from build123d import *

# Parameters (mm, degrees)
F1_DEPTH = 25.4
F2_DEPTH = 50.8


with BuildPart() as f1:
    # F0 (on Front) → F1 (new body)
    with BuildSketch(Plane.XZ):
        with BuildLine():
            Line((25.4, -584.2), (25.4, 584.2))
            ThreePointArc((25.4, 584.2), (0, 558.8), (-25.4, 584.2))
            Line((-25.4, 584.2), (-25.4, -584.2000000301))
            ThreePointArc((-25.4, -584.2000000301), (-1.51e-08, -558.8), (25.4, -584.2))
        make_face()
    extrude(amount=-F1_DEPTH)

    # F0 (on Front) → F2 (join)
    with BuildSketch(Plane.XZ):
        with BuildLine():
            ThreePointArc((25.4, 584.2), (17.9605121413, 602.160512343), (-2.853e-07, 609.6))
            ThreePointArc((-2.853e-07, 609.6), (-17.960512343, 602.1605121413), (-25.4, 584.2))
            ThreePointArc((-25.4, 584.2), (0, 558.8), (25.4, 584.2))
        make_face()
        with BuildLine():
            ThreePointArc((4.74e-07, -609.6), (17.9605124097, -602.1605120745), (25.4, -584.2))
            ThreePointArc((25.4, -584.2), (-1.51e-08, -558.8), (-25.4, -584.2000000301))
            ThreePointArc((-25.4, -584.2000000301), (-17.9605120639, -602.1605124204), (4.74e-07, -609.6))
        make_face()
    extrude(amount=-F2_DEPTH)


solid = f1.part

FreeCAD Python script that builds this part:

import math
import FreeCAD as App
import Part
import Sketcher
Q = App.Units.Quantity

doc = App.newDocument("Part")
body = doc.addObject("PartDesign::Body", "Body")

# Sketch on XZ plane
sketch1 = doc.addObject("Sketcher::SketchObject", "Sketch")
body.addObject(sketch1)
sketch1.AttachmentSupport = (doc.XZ_Plane, [""])
sketch1.MapMode = "FlatFace"
sketch1.addGeometry(Part.LineSegment(App.Vector(25, -584, 0), App.Vector(25, 584, 0)), False)
sketch1.addGeometry(Part.ArcOfCircle(Part.Circle(App.Vector(0, 584, 0), App.Vector(0, 0, 1), 25), math.radians(180), math.radians(360)), False)
sketch1.addGeometry(Part.LineSegment(App.Vector(-25, 584, 0), App.Vector(-25, -584, 0)), False)
sketch1.addGeometry(Part.ArcOfCircle(Part.Circle(App.Vector(0, -584, 0), App.Vector(0, 0, 1), 25), math.radians(0), math.radians(180)), False)
sketch1.addConstraint(Sketcher.Constraint("Tangent", 0, 2, 1, 2))
sketch1.addConstraint(Sketcher.Constraint("Tangent", 1, 1, 2, 1))
sketch1.addConstraint(Sketcher.Constraint("Tangent", 2, 2, 3, 2))
sketch1.addConstraint(Sketcher.Constraint("Tangent", 3, 1, 0, 1))
sketch1.addConstraint(Sketcher.Constraint("Vertical", 0))
sketch1.addConstraint(Sketcher.Constraint("Vertical", 2))
sketch1.addConstraint(Sketcher.Constraint("Symmetric", 1, 3, 3, 3, -1, 1))
sketch1.addConstraint(Sketcher.Constraint("Radius", 1, Q("1 in")))
sketch1.addConstraint(Sketcher.Constraint("DistanceY", 0, 1, 0, 2, Q("46 in")))
pad1 = doc.addObject("PartDesign::Pad", "Pad")
body.addObject(pad1)
pad1.Profile = sketch1
pad1.Length = Q("1 in")
pad1.Reversed = True

# Sketch on XZ plane
sketch2 = doc.addObject("Sketcher::SketchObject", "Sketch001")
body.addObject(sketch2)
sketch2.AttachmentSupport = (doc.XZ_Plane, [""])
sketch2.MapMode = "FlatFace"
sketch2.addGeometry(Part.ArcOfCircle(Part.Circle(App.Vector(0, 584, 0), App.Vector(0, 0, 1), 25), math.radians(0), math.radians(90)), False)
sketch2.addGeometry(Part.ArcOfCircle(Part.Circle(App.Vector(0, 584, 0), App.Vector(0, 0, 1), 25), math.radians(90), math.radians(180)), False)
sketch2.addGeometry(Part.ArcOfCircle(Part.Circle(App.Vector(0, 584, 0), App.Vector(0, 0, 1), 25), math.radians(180), math.radians(360)), False)
sketch2.addGeometry(Part.ArcOfCircle(Part.Circle(App.Vector(0, -584, 0), App.Vector(0, 0, 1), 25), math.radians(-90), math.radians(0)), False)
sketch2.addGeometry(Part.ArcOfCircle(Part.Circle(App.Vector(0, -584, 0), App.Vector(0, 0, 1), 25), math.radians(0), math.radians(180)), False)
sketch2.addGeometry(Part.ArcOfCircle(Part.Circle(App.Vector(0, -584, 0), App.Vector(0, 0, 1), 25), math.radians(-180), math.radians(-90)), False)
sketch2.addConstraint(Sketcher.Constraint("Tangent", 0, 2, 1, 1))
sketch2.addConstraint(Sketcher.Constraint("Tangent", 1, 2, 2, 1))
sketch2.addConstraint(Sketcher.Constraint("Tangent", 2, 2, 0, 1))
sketch2.addConstraint(Sketcher.Constraint("Tangent", 3, 2, 4, 1))
sketch2.addConstraint(Sketcher.Constraint("Tangent", 4, 2, 5, 1))
sketch2.addConstraint(Sketcher.Constraint("Tangent", 5, 2, 3, 1))
sketch2.addConstraint(Sketcher.Constraint("Equal", 2, 3))
sketch2.addConstraint(Sketcher.Constraint("Symmetric", 0, 3, 3, 3, -1, 1))
sketch2.addConstraint(Sketcher.Constraint("Symmetric", 1, 2, 2, 2, -2))
sketch2.addConstraint(Sketcher.Constraint("PointOnObject", 0, 2, -2))
sketch2.addConstraint(Sketcher.Constraint("PointOnObject", 5, 2, -2))
sketch2.addConstraint(Sketcher.Constraint("Horizontal", 2, 3, 1, 2))
sketch2.addConstraint(Sketcher.Constraint("Horizontal", 5, 3, 3, 2))
sketch2.addConstraint(Sketcher.Constraint("Horizontal", 3, 2, 4, 2))
sketch2.addConstraint(Sketcher.Constraint("Radius", 0, Q("1 in")))
sketch2.addConstraint(Sketcher.Constraint("DistanceY", -1, 1, 0, 3, Q("23 in")))
pad2 = doc.addObject("PartDesign::Pad", "Pad001")
body.addObject(pad2)
pad2.Profile = sketch2
pad2.Length = Q("2 in")
pad2.Reversed = True

doc.recompute()
